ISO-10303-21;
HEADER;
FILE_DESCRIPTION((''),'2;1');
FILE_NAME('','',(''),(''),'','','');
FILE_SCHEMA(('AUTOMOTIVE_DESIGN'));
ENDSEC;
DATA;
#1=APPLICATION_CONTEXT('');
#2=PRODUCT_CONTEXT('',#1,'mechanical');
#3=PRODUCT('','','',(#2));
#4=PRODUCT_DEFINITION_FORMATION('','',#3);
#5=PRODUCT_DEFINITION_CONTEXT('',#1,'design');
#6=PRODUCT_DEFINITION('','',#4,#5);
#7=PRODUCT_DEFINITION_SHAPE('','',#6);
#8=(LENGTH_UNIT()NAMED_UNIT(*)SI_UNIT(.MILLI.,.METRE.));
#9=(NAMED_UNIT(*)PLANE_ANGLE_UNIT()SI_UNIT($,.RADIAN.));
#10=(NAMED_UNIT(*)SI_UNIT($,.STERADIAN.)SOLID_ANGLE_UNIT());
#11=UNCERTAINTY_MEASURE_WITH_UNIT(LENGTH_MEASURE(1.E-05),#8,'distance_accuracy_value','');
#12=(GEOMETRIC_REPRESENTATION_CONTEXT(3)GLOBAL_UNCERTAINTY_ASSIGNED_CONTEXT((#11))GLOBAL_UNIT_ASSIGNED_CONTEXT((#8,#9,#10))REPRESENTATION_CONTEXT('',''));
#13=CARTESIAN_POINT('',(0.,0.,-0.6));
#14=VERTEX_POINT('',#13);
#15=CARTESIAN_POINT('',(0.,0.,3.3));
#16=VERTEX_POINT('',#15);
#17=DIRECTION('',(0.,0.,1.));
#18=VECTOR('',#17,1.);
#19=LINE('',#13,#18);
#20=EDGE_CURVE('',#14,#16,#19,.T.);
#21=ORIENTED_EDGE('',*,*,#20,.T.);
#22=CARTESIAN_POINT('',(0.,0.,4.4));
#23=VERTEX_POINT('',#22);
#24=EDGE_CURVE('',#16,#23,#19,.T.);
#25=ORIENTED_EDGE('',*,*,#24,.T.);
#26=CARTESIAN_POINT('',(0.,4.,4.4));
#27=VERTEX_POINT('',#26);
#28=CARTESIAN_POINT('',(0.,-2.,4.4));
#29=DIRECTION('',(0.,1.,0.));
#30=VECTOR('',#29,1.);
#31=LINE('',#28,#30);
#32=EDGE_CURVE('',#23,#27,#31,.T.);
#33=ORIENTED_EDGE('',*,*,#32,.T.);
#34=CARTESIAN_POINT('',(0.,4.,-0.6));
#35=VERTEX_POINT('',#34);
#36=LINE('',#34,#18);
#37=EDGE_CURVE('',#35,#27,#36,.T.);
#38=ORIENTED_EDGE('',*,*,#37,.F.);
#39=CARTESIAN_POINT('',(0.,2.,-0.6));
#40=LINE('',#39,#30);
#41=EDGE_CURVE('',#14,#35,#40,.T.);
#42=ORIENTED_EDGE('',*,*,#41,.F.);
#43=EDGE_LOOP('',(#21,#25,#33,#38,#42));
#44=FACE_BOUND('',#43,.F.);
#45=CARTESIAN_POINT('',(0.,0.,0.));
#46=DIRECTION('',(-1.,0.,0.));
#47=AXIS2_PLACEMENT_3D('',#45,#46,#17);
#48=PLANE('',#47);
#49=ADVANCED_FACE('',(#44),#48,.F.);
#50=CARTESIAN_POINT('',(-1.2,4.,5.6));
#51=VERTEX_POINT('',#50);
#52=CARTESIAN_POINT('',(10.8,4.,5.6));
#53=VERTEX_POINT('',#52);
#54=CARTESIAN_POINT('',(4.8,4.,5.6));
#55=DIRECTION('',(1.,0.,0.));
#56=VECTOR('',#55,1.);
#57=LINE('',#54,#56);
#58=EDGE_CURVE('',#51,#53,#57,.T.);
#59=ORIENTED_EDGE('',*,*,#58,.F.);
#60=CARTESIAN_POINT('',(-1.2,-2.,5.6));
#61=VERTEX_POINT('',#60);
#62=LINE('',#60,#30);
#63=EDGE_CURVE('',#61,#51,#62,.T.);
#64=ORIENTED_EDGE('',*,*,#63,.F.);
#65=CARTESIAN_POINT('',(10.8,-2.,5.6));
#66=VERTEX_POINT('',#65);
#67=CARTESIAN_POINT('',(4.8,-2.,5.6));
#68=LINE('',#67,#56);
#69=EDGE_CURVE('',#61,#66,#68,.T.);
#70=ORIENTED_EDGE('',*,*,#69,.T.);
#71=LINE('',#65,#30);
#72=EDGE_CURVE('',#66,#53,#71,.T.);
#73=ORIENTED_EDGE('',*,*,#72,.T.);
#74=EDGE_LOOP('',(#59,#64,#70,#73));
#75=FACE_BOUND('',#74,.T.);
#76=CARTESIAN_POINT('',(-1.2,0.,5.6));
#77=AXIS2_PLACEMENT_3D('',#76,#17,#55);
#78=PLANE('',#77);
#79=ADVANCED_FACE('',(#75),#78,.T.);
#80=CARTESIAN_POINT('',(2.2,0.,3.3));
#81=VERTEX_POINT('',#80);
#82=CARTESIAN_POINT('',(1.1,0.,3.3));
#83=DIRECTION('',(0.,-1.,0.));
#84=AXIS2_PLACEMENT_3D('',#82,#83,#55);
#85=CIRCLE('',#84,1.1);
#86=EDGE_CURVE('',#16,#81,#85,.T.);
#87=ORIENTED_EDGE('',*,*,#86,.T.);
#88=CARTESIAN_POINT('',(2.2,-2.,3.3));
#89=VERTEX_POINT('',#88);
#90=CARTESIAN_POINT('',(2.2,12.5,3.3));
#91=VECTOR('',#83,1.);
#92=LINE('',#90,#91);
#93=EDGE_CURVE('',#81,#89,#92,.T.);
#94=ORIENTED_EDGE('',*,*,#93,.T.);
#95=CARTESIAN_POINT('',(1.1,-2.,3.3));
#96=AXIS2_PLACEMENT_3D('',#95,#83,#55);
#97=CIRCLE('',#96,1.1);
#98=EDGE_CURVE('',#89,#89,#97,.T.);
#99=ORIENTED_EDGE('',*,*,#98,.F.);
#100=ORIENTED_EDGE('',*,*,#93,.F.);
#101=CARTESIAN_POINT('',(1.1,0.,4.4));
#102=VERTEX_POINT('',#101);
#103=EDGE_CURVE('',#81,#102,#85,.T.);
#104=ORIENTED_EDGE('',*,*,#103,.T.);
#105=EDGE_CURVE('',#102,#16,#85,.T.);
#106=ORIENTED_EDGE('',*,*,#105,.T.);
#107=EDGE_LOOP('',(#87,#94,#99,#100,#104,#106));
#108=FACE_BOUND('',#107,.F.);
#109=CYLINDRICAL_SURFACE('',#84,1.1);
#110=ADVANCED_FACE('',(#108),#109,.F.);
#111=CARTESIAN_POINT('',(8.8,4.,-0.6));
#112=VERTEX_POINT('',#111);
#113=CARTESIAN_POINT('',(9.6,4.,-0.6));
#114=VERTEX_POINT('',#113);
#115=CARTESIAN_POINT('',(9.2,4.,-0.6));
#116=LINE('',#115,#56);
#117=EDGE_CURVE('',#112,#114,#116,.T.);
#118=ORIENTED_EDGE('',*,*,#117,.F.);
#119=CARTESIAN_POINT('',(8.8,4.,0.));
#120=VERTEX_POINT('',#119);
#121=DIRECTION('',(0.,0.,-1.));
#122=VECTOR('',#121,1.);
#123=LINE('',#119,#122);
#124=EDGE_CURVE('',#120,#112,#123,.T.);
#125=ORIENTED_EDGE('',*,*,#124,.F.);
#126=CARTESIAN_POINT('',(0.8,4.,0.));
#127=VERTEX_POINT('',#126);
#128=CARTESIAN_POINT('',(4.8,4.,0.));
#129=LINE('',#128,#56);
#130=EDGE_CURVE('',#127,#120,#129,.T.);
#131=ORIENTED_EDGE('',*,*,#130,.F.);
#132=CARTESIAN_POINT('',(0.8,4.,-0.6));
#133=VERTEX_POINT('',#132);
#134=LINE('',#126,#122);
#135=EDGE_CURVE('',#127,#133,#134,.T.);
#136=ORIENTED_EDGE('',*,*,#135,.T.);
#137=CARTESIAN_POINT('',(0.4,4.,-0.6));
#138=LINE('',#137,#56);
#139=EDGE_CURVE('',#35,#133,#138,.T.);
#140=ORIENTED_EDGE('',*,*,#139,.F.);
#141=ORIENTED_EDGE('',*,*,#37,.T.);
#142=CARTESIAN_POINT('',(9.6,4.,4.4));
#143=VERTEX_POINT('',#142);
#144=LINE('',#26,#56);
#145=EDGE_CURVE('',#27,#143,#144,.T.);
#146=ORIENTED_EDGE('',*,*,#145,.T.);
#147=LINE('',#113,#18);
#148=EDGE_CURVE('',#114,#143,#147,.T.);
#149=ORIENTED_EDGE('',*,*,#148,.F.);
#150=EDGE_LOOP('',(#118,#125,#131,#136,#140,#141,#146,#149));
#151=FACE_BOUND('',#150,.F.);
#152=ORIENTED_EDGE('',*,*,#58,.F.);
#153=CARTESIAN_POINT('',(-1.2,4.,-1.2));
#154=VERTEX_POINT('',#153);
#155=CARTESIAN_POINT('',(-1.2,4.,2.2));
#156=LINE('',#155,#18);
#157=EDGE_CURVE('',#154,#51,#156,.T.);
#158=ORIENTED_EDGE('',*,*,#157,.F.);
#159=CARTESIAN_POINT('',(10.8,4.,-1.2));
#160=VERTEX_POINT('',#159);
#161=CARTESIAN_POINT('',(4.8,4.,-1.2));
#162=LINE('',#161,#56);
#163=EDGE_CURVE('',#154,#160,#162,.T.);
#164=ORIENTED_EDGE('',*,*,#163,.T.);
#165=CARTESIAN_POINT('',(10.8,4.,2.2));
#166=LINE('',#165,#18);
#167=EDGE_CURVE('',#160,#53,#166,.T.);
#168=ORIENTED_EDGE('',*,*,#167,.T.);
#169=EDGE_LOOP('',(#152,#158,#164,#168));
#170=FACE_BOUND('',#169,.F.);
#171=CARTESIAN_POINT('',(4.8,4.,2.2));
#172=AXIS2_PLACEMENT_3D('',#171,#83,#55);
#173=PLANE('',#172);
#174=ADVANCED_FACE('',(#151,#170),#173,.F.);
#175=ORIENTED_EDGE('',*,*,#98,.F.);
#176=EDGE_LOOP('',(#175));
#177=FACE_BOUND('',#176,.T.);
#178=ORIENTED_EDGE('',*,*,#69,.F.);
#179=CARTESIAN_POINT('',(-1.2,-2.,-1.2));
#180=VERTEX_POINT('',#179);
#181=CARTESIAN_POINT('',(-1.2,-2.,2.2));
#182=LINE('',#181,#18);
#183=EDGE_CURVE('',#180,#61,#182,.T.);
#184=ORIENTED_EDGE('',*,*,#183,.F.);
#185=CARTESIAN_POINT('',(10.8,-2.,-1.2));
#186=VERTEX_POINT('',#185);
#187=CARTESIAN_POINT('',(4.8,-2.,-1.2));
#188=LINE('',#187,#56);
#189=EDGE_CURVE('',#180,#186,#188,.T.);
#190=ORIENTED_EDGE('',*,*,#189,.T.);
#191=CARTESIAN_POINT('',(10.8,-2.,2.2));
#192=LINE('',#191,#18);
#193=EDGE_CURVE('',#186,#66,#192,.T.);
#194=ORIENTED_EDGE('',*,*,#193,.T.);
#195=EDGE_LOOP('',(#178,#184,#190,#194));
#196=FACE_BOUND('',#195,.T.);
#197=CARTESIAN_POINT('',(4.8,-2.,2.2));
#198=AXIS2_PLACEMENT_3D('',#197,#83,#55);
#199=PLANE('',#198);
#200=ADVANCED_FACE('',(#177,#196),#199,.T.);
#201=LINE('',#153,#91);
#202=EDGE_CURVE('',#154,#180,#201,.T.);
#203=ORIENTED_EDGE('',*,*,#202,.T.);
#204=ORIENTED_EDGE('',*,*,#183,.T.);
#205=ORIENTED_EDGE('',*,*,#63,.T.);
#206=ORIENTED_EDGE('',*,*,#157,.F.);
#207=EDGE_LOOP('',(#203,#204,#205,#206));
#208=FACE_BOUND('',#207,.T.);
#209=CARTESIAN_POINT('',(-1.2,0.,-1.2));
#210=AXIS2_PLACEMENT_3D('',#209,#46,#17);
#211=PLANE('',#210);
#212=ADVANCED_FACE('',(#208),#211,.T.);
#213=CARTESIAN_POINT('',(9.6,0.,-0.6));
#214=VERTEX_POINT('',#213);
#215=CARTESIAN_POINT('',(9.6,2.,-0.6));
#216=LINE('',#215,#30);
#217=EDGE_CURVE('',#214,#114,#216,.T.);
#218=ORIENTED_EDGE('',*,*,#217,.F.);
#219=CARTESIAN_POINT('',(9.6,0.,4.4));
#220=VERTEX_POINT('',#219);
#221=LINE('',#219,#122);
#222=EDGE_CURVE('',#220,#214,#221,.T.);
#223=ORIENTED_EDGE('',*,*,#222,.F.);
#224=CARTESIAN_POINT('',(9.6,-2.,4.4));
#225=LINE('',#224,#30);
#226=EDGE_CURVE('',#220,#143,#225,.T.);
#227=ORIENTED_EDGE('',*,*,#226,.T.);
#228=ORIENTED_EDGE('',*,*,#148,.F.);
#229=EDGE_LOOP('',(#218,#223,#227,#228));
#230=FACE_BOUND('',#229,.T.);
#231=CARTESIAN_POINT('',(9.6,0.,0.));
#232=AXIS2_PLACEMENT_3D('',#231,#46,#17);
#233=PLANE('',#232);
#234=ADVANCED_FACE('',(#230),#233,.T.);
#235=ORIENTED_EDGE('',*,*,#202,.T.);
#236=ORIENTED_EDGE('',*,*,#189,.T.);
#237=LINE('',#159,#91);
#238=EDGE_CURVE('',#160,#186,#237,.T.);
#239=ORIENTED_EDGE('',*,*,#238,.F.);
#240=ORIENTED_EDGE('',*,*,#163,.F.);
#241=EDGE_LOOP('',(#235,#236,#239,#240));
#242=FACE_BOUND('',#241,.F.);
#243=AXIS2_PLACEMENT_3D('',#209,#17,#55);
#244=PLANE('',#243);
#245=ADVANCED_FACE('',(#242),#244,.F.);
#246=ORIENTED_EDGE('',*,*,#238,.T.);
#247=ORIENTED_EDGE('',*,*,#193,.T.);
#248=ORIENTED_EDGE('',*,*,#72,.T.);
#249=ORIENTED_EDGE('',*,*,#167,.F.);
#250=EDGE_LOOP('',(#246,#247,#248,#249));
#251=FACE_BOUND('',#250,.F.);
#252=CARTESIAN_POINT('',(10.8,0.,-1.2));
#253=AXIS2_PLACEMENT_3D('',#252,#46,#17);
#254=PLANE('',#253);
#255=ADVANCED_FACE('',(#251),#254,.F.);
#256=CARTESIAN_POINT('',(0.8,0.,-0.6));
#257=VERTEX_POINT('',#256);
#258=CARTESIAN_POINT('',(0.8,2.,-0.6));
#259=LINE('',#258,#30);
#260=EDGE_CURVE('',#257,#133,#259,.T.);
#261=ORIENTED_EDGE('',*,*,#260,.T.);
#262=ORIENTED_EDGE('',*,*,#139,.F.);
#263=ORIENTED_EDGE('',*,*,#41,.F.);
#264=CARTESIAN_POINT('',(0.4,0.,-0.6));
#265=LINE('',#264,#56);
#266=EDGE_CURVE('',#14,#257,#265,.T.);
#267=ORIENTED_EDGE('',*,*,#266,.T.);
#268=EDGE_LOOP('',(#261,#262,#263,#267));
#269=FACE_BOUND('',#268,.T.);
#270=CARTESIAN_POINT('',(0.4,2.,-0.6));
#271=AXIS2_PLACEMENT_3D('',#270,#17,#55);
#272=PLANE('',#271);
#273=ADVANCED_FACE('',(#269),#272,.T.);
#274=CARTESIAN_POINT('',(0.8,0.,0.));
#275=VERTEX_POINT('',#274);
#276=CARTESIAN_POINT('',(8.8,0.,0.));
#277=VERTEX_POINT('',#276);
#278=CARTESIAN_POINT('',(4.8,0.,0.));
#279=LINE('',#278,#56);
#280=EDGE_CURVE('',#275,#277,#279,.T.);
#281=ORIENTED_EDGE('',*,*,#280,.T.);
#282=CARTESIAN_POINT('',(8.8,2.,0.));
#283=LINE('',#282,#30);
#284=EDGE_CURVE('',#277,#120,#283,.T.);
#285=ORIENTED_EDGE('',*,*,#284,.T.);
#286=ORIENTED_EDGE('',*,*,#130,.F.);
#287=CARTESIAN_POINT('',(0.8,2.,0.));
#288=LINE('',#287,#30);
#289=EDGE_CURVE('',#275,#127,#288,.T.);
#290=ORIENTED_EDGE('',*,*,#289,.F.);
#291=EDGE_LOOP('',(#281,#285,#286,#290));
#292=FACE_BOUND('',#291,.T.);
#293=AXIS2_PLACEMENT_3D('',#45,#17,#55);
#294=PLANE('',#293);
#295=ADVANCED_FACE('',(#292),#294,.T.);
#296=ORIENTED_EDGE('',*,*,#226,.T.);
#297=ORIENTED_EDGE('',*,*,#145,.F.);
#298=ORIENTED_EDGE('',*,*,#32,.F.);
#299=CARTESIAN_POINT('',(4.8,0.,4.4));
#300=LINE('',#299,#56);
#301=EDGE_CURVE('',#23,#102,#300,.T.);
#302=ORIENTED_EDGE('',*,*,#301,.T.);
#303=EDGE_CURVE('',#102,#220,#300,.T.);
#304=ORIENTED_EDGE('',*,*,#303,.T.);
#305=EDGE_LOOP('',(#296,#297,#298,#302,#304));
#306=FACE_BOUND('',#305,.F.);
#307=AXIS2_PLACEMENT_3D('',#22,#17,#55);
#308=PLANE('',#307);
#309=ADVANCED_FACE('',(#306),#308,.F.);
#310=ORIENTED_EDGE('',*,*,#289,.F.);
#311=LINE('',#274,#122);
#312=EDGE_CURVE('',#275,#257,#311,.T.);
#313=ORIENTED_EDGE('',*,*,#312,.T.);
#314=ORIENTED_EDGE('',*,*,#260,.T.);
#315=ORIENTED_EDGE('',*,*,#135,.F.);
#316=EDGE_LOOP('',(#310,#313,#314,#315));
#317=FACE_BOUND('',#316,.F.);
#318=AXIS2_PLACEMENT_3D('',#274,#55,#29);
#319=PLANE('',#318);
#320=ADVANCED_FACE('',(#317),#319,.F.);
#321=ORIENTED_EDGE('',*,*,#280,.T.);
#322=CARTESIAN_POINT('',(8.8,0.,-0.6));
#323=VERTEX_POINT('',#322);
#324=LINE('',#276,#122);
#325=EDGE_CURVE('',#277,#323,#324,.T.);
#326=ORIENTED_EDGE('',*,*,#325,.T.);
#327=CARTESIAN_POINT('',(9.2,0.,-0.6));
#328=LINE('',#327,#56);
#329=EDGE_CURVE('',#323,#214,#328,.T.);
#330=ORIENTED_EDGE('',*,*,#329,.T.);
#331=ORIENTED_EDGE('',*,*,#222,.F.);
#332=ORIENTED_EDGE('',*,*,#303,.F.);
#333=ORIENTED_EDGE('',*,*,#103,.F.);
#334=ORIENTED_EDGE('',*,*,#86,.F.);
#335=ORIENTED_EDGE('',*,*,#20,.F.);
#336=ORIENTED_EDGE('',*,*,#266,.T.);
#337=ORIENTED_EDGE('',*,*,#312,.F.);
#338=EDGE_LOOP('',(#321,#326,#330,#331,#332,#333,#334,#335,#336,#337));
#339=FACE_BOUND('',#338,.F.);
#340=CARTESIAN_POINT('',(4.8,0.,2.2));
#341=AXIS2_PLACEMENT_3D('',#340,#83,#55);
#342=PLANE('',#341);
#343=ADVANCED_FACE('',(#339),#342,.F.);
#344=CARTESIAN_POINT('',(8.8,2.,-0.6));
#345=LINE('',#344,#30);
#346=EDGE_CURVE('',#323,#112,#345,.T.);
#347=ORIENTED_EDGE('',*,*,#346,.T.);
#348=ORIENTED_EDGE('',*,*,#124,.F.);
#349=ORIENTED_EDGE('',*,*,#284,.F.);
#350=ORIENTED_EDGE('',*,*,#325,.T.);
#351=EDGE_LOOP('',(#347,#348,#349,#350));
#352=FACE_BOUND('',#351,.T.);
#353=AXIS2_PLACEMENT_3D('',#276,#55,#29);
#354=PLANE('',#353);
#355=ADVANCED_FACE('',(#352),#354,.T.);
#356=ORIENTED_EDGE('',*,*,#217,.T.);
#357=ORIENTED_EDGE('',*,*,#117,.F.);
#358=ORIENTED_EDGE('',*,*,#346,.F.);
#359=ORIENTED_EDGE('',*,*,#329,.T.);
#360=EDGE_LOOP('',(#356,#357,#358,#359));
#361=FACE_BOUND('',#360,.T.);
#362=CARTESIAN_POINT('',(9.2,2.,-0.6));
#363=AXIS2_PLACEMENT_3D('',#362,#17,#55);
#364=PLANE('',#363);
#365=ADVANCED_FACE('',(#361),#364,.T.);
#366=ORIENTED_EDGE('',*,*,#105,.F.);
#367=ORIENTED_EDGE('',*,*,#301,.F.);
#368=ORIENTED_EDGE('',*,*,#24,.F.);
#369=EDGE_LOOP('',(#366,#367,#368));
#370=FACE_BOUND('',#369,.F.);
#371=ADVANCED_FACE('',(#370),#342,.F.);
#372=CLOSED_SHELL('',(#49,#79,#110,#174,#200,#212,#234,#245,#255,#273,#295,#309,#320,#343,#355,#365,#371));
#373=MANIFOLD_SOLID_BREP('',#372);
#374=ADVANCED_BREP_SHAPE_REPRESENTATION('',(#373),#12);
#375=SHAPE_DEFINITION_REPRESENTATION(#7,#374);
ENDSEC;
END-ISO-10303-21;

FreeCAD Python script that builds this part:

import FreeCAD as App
import Part
import Sketcher
Q = App.Units.Quantity


def add_polygon(sketch, points):
    """Adds a closed chain of lines whose ends are joined by coincident constraints."""
    first, n = sketch.GeometryCount, len(points)
    for a, b in zip(points, points[1:] + points[:1]):
        sketch.addGeometry(Part.LineSegment(App.Vector(*a, 0), App.Vector(*b, 0)), False)
    for i in range(n):
        sketch.addConstraint(Sketcher.Constraint("Coincident", first + i, 2, first + (i + 1) % n, 1))

doc = App.newDocument("Part")
params = doc.addObject("Spreadsheet::Sheet", "Params")
for row, (alias, value) in enumerate([
    ("sketch1_width", "12 mm"),
    ("sketch1_width2", "9.6 mm"),
    ("sketch1_height", "6.8 mm"),
    ("sketch1_height2", "4.4 mm"),
    ("pad1_length", "4 mm"),
    ("pad1_length2", "2 mm"),
    ("sketch2_height", "4 mm"),
    ("sketch2_width", "0.8 mm"),
    ("pocket1_length", "0.6 mm"),
    ("sketch3_width", "9.6 mm"),
    ("sketch3_height", "4.4 mm"),
    ("pad2_length", "2 mm"),
    ("sketch4_diameter", "2.2 mm"),
    ("pocket2_length", "25 mm"),
], start=1):
    params.set(f"A{row}", alias)
    params.set(f"B{row}", "=" + value)
    params.setAlias(f"B{row}", alias)

body = doc.addObject("PartDesign::Body", "Body")

sketch1 = body.newObject("Sketcher::SketchObject", "Sketch")
sketch1.AttachmentSupport = (doc.getObject("XZ_Plane"), [""])
sketch1.MapMode = "FlatFace"
add_polygon(sketch1, [(-1.2, 5.6), (-1.2, -1.2), (10.8, -1.2), (10.8, 5.6)])
add_polygon(sketch1, [(9.6, 0), (0, 0), (0, 4.4), (9.6, 4.4)])
sketch1.addConstraint(Sketcher.Constraint("Vertical", 0))
sketch1.addConstraint(Sketcher.Constraint("Horizontal", 1))
sketch1.addConstraint(Sketcher.Constraint("Vertical", 2))
sketch1.addConstraint(Sketcher.Constraint("Horizontal", 3))
sketch1.addConstraint(Sketcher.Constraint("Horizontal", 4))
sketch1.addConstraint(Sketcher.Constraint("Vertical", 5))
sketch1.addConstraint(Sketcher.Constraint("Horizontal", 6))
sketch1.addConstraint(Sketcher.Constraint("Vertical", 7))
sketch1.addConstraint(Sketcher.Constraint("Coincident", 4, 2, -1, 1))
sketch1.addConstraint(Sketcher.Constraint("DistanceX", 1, 1, 1, 2, Q("12 mm")))
sketch1.addConstraint(Sketcher.Constraint("DistanceX", 4, 2, 4, 1, Q("9.6 mm")))
sketch1.addConstraint(Sketcher.Constraint("DistanceY", 0, 2, 0, 1, Q("6.8 mm")))
sketch1.addConstraint(Sketcher.Constraint("DistanceY", 5, 1, 5, 2, Q("4.4 mm")))
sketch1.addConstraint(Sketcher.Constraint("DistanceX", 0, 2, -1, 1, Q("1.2 mm")))
sketch1.addConstraint(Sketcher.Constraint("DistanceY", 0, 2, -1, 1, Q("1.2 mm")))
sketch1.setExpression("Constraints[17]", "Params.sketch1_width")
sketch1.setExpression("Constraints[18]", "Params.sketch1_width2")
sketch1.setExpression("Constraints[19]", "Params.sketch1_height")
sketch1.setExpression("Constraints[20]", "Params.sketch1_height2")
pad1 = body.newObject("PartDesign::Pad", "Pad")
pad1.Profile = sketch1
pad1.Type = "TwoLengths"
pad1.setExpression("Length", "Params.pad1_length")
pad1.setExpression("Length2", "Params.pad1_length2")
pad1.Reversed = True

sketch2 = body.newObject("Sketcher::SketchObject", "Sketch001")
sketch2.AttachmentSupport = (doc.getObject("XY_Plane"), [""])
sketch2.MapMode = "FlatFace"
add_polygon(sketch2, [(0, 4), (0, 0), (0.8, 0), (0.8, 4)])
add_polygon(sketch2, [(8.8, 4), (8.8, 0), (9.6, 0), (9.6, 4)])
sketch2.addConstraint(Sketcher.Constraint("Vertical", 0))
sketch2.addConstraint(Sketcher.Constraint("Horizontal", 1))
sketch2.addConstraint(Sketcher.Constraint("Vertical", 2))
sketch2.addConstraint(Sketcher.Constraint("Horizontal", 3))
sketch2.addConstraint(Sketcher.Constraint("Vertical", 4))
sketch2.addConstraint(Sketcher.Constraint("Horizontal", 5))
sketch2.addConstraint(Sketcher.Constraint("Vertical", 6))
sketch2.addConstraint(Sketcher.Constraint("Horizontal", 7))
sketch2.addConstraint(Sketcher.Constraint("Coincident", 0, 2, -1, 1))
sketch2.addConstraint(Sketcher.Constraint("PointOnObject", 4, 2, -1))
sketch2.addConstraint(Sketcher.Constraint("Horizontal", 3, 2, 6, 2))
sketch2.addConstraint(Sketcher.Constraint("Equal", 3, 5))
sketch2.addConstraint(Sketcher.Constraint("DistanceY", 0, 2, 0, 1, Q("4 mm")))
sketch2.addConstraint(Sketcher.Constraint("DistanceX", 1, 1, 1, 2, Q("0.8 mm")))
sketch2.addConstraint(Sketcher.Constraint("DistanceX", 1, 2, 4, 2, Q("8 mm")))
sketch2.setExpression("Constraints[20]", "Params.sketch2_height")
sketch2.setExpression("Constraints[21]", "Params.sketch2_width")
pocket1 = body.newObject("PartDesign::Pocket", "Pocket")
pocket1.Profile = sketch2
pocket1.setExpression("Length", "Params.pocket1_length")

sketch3 = body.newObject("Sketcher::SketchObject", "Sketch002")
sketch3.AttachmentSupport = (doc.getObject("XZ_Plane"), [""])
sketch3.MapMode = "FlatFace"
add_polygon(sketch3, [(0, 4.4), (0, 0), (9.6, 0), (9.6, 4.4)])
sketch3.addConstraint(Sketcher.Constraint("Vertical", 0))
sketch3.addConstraint(Sketcher.Constraint("Horizontal", 1))
sketch3.addConstraint(Sketcher.Constraint("Vertical", 2))
sketch3.addConstraint(Sketcher.Constraint("Horizontal", 3))
sketch3.addConstraint(Sketcher.Constraint("Coincident", 0, 2, -1, 1))
sketch3.addConstraint(Sketcher.Constraint("DistanceX", 1, 1, 1, 2, Q("9.6 mm")))
sketch3.addConstraint(Sketcher.Constraint("DistanceY", 0, 2, 0, 1, Q("4.4 mm")))
sketch3.setExpression("Constraints[9]", "Params.sketch3_width")
sketch3.setExpression("Constraints[10]", "Params.sketch3_height")
pad2 = body.newObject("PartDesign::Pad", "Pad001")
pad2.Profile = sketch3
pad2.setExpression("Length", "Params.pad2_length")

sketch4 = body.newObject("Sketcher::SketchObject", "Sketch003")
sketch4.AttachmentSupport = (doc.getObject("XZ_Plane"), [""])
sketch4.MapMode = "FlatFace"
sketch4.addGeometry(Part.Circle(App.Vector(1.1, 3.3, 0), App.Vector(0, 0, 1), 1.1), False)
sketch4.addConstraint(Sketcher.Constraint("Diameter", 0, Q("2.2 mm")))
sketch4.addConstraint(Sketcher.Constraint("DistanceX", -1, 1, 0, 3, Q("1.1 mm")))
sketch4.addConstraint(Sketcher.Constraint("DistanceY", -1, 1, 0, 3, Q("3.3 mm")))
sketch4.setExpression("Constraints[0]", "Params.sketch4_diameter")
pocket2 = body.newObject("PartDesign::Pocket", "Pocket001")
pocket2.Profile = sketch4
pocket2.setExpression("Length", "Params.pocket2_length")
pocket2.Midplane = True

doc.recompute()
